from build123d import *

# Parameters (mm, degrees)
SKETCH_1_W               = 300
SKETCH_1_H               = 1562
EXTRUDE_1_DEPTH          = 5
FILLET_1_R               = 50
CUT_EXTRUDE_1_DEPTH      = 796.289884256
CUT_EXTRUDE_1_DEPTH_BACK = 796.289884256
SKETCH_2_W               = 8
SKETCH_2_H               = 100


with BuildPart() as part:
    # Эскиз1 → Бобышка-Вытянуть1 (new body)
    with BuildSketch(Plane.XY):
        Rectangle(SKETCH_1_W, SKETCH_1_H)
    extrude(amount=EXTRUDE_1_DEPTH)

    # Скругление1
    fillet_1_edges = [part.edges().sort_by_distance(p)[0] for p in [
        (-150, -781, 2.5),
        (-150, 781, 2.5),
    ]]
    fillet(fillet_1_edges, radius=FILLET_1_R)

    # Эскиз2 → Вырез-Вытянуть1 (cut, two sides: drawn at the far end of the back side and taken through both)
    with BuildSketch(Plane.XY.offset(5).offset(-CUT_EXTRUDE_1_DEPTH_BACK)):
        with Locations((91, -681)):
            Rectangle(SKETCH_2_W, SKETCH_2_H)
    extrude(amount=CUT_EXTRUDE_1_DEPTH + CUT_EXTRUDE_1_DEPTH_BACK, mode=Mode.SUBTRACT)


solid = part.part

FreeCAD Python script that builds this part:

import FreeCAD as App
import Part
import Sketcher
from FreeCAD import Vector


def edges_at(feature, points):
    """Names of the edges that pass closest to the given points."""
    edges = feature.Shape.Edges
    near = lambda p: min(range(len(edges)), key=lambda i: edges[i].distToShape(Part.Vertex(*p))[0])
    return sorted({f"Edge{near(p) + 1}" for p in points})


def add_polygon(sketch, points):
    """Adds a closed chain of lines whose ends are joined by coincident constraints."""
    first, n = sketch.GeometryCount, len(points)
    for a, b in zip(points, points[1:] + points[:1]):
        sketch.addGeometry(Part.LineSegment(App.Vector(*a, 0), App.Vector(*b, 0)), False)
    for i in range(n):
        sketch.addConstraint(Sketcher.Constraint("Coincident", first + i, 2, first + (i + 1) % n, 1))

doc = App.newDocument("Part")
body = doc.addObject("PartDesign::Body", "Body")

# Sketch on XY plane
sketch1 = doc.addObject("Sketcher::SketchObject", "Sketch")
body.addObject(sketch1)
sketch1.AttachmentSupport = (doc.XY_Plane, [""])
sketch1.MapMode = "FlatFace"
add_polygon(sketch1, [(-150, 781), (-150, -781), (150, -781), (150, 781)])  # lines 0-3
sketch1.addConstraint(Sketcher.Constraint("Vertical", 0))
sketch1.addConstraint(Sketcher.Constraint("Horizontal", 1))
sketch1.addConstraint(Sketcher.Constraint("Vertical", 2))
sketch1.addConstraint(Sketcher.Constraint("Horizontal", 3))
sketch1.addConstraint(Sketcher.Constraint("Symmetric", 0, 2, 2, 2, -1, 1))
sketch1.addConstraint(Sketcher.Constraint("DistanceX", 1, 1, 1, 2, 300.0))
sketch1.addConstraint(Sketcher.Constraint("DistanceY", 0, 2, 0, 1, 1562.0))
pad1 = doc.addObject("PartDesign::Pad", "Pad")
body.addObject(pad1)
pad1.Profile = sketch1
pad1.Length = 5
doc.recompute()

fillet = doc.addObject("PartDesign::Fillet", "Fillet")
body.addObject(fillet)
fillet.Base = (pad1, edges_at(pad1, [(-150, -781, 2.5), (-150, 781, 2.5)]))
fillet.Radius = 50

# Sketch on XY plane
sketch2 = doc.addObject("Sketcher::SketchObject", "Sketch001")
body.addObject(sketch2)
sketch2.AttachmentSupport = (doc.XY_Plane, [""])
sketch2.MapMode = "FlatFace"
sketch2.AttachmentOffset = App.Placement(Vector(0, 0, 5), App.Rotation())
add_polygon(sketch2, [(87, -631), (87, -731), (95, -731), (95, -631)])  # lines 0-3
sketch2.addConstraint(Sketcher.Constraint("Vertical", 0))
sketch2.addConstraint(Sketcher.Constraint("Horizontal", 1))
sketch2.addConstraint(Sketcher.Constraint("Vertical", 2))
sketch2.addConstraint(Sketcher.Constraint("Horizontal", 3))
sketch2.addConstraint(Sketcher.Constraint("DistanceX", 1, 1, 1, 2, 8.0))
sketch2.addConstraint(Sketcher.Constraint("DistanceY", 0, 2, 0, 1, 100.0))
sketch2.addConstraint(Sketcher.Constraint("DistanceX", -1, 1, 0, 2, 87.0))
sketch2.addConstraint(Sketcher.Constraint("DistanceY", 0, 2, -1, 1, 731.0))
pocket1 = doc.addObject("PartDesign::Pocket", "Pocket")
body.addObject(pocket1)
pocket1.Profile = sketch2
pocket1.Type = "ThroughAll"
pocket1.Midplane = True

doc.recompute()
